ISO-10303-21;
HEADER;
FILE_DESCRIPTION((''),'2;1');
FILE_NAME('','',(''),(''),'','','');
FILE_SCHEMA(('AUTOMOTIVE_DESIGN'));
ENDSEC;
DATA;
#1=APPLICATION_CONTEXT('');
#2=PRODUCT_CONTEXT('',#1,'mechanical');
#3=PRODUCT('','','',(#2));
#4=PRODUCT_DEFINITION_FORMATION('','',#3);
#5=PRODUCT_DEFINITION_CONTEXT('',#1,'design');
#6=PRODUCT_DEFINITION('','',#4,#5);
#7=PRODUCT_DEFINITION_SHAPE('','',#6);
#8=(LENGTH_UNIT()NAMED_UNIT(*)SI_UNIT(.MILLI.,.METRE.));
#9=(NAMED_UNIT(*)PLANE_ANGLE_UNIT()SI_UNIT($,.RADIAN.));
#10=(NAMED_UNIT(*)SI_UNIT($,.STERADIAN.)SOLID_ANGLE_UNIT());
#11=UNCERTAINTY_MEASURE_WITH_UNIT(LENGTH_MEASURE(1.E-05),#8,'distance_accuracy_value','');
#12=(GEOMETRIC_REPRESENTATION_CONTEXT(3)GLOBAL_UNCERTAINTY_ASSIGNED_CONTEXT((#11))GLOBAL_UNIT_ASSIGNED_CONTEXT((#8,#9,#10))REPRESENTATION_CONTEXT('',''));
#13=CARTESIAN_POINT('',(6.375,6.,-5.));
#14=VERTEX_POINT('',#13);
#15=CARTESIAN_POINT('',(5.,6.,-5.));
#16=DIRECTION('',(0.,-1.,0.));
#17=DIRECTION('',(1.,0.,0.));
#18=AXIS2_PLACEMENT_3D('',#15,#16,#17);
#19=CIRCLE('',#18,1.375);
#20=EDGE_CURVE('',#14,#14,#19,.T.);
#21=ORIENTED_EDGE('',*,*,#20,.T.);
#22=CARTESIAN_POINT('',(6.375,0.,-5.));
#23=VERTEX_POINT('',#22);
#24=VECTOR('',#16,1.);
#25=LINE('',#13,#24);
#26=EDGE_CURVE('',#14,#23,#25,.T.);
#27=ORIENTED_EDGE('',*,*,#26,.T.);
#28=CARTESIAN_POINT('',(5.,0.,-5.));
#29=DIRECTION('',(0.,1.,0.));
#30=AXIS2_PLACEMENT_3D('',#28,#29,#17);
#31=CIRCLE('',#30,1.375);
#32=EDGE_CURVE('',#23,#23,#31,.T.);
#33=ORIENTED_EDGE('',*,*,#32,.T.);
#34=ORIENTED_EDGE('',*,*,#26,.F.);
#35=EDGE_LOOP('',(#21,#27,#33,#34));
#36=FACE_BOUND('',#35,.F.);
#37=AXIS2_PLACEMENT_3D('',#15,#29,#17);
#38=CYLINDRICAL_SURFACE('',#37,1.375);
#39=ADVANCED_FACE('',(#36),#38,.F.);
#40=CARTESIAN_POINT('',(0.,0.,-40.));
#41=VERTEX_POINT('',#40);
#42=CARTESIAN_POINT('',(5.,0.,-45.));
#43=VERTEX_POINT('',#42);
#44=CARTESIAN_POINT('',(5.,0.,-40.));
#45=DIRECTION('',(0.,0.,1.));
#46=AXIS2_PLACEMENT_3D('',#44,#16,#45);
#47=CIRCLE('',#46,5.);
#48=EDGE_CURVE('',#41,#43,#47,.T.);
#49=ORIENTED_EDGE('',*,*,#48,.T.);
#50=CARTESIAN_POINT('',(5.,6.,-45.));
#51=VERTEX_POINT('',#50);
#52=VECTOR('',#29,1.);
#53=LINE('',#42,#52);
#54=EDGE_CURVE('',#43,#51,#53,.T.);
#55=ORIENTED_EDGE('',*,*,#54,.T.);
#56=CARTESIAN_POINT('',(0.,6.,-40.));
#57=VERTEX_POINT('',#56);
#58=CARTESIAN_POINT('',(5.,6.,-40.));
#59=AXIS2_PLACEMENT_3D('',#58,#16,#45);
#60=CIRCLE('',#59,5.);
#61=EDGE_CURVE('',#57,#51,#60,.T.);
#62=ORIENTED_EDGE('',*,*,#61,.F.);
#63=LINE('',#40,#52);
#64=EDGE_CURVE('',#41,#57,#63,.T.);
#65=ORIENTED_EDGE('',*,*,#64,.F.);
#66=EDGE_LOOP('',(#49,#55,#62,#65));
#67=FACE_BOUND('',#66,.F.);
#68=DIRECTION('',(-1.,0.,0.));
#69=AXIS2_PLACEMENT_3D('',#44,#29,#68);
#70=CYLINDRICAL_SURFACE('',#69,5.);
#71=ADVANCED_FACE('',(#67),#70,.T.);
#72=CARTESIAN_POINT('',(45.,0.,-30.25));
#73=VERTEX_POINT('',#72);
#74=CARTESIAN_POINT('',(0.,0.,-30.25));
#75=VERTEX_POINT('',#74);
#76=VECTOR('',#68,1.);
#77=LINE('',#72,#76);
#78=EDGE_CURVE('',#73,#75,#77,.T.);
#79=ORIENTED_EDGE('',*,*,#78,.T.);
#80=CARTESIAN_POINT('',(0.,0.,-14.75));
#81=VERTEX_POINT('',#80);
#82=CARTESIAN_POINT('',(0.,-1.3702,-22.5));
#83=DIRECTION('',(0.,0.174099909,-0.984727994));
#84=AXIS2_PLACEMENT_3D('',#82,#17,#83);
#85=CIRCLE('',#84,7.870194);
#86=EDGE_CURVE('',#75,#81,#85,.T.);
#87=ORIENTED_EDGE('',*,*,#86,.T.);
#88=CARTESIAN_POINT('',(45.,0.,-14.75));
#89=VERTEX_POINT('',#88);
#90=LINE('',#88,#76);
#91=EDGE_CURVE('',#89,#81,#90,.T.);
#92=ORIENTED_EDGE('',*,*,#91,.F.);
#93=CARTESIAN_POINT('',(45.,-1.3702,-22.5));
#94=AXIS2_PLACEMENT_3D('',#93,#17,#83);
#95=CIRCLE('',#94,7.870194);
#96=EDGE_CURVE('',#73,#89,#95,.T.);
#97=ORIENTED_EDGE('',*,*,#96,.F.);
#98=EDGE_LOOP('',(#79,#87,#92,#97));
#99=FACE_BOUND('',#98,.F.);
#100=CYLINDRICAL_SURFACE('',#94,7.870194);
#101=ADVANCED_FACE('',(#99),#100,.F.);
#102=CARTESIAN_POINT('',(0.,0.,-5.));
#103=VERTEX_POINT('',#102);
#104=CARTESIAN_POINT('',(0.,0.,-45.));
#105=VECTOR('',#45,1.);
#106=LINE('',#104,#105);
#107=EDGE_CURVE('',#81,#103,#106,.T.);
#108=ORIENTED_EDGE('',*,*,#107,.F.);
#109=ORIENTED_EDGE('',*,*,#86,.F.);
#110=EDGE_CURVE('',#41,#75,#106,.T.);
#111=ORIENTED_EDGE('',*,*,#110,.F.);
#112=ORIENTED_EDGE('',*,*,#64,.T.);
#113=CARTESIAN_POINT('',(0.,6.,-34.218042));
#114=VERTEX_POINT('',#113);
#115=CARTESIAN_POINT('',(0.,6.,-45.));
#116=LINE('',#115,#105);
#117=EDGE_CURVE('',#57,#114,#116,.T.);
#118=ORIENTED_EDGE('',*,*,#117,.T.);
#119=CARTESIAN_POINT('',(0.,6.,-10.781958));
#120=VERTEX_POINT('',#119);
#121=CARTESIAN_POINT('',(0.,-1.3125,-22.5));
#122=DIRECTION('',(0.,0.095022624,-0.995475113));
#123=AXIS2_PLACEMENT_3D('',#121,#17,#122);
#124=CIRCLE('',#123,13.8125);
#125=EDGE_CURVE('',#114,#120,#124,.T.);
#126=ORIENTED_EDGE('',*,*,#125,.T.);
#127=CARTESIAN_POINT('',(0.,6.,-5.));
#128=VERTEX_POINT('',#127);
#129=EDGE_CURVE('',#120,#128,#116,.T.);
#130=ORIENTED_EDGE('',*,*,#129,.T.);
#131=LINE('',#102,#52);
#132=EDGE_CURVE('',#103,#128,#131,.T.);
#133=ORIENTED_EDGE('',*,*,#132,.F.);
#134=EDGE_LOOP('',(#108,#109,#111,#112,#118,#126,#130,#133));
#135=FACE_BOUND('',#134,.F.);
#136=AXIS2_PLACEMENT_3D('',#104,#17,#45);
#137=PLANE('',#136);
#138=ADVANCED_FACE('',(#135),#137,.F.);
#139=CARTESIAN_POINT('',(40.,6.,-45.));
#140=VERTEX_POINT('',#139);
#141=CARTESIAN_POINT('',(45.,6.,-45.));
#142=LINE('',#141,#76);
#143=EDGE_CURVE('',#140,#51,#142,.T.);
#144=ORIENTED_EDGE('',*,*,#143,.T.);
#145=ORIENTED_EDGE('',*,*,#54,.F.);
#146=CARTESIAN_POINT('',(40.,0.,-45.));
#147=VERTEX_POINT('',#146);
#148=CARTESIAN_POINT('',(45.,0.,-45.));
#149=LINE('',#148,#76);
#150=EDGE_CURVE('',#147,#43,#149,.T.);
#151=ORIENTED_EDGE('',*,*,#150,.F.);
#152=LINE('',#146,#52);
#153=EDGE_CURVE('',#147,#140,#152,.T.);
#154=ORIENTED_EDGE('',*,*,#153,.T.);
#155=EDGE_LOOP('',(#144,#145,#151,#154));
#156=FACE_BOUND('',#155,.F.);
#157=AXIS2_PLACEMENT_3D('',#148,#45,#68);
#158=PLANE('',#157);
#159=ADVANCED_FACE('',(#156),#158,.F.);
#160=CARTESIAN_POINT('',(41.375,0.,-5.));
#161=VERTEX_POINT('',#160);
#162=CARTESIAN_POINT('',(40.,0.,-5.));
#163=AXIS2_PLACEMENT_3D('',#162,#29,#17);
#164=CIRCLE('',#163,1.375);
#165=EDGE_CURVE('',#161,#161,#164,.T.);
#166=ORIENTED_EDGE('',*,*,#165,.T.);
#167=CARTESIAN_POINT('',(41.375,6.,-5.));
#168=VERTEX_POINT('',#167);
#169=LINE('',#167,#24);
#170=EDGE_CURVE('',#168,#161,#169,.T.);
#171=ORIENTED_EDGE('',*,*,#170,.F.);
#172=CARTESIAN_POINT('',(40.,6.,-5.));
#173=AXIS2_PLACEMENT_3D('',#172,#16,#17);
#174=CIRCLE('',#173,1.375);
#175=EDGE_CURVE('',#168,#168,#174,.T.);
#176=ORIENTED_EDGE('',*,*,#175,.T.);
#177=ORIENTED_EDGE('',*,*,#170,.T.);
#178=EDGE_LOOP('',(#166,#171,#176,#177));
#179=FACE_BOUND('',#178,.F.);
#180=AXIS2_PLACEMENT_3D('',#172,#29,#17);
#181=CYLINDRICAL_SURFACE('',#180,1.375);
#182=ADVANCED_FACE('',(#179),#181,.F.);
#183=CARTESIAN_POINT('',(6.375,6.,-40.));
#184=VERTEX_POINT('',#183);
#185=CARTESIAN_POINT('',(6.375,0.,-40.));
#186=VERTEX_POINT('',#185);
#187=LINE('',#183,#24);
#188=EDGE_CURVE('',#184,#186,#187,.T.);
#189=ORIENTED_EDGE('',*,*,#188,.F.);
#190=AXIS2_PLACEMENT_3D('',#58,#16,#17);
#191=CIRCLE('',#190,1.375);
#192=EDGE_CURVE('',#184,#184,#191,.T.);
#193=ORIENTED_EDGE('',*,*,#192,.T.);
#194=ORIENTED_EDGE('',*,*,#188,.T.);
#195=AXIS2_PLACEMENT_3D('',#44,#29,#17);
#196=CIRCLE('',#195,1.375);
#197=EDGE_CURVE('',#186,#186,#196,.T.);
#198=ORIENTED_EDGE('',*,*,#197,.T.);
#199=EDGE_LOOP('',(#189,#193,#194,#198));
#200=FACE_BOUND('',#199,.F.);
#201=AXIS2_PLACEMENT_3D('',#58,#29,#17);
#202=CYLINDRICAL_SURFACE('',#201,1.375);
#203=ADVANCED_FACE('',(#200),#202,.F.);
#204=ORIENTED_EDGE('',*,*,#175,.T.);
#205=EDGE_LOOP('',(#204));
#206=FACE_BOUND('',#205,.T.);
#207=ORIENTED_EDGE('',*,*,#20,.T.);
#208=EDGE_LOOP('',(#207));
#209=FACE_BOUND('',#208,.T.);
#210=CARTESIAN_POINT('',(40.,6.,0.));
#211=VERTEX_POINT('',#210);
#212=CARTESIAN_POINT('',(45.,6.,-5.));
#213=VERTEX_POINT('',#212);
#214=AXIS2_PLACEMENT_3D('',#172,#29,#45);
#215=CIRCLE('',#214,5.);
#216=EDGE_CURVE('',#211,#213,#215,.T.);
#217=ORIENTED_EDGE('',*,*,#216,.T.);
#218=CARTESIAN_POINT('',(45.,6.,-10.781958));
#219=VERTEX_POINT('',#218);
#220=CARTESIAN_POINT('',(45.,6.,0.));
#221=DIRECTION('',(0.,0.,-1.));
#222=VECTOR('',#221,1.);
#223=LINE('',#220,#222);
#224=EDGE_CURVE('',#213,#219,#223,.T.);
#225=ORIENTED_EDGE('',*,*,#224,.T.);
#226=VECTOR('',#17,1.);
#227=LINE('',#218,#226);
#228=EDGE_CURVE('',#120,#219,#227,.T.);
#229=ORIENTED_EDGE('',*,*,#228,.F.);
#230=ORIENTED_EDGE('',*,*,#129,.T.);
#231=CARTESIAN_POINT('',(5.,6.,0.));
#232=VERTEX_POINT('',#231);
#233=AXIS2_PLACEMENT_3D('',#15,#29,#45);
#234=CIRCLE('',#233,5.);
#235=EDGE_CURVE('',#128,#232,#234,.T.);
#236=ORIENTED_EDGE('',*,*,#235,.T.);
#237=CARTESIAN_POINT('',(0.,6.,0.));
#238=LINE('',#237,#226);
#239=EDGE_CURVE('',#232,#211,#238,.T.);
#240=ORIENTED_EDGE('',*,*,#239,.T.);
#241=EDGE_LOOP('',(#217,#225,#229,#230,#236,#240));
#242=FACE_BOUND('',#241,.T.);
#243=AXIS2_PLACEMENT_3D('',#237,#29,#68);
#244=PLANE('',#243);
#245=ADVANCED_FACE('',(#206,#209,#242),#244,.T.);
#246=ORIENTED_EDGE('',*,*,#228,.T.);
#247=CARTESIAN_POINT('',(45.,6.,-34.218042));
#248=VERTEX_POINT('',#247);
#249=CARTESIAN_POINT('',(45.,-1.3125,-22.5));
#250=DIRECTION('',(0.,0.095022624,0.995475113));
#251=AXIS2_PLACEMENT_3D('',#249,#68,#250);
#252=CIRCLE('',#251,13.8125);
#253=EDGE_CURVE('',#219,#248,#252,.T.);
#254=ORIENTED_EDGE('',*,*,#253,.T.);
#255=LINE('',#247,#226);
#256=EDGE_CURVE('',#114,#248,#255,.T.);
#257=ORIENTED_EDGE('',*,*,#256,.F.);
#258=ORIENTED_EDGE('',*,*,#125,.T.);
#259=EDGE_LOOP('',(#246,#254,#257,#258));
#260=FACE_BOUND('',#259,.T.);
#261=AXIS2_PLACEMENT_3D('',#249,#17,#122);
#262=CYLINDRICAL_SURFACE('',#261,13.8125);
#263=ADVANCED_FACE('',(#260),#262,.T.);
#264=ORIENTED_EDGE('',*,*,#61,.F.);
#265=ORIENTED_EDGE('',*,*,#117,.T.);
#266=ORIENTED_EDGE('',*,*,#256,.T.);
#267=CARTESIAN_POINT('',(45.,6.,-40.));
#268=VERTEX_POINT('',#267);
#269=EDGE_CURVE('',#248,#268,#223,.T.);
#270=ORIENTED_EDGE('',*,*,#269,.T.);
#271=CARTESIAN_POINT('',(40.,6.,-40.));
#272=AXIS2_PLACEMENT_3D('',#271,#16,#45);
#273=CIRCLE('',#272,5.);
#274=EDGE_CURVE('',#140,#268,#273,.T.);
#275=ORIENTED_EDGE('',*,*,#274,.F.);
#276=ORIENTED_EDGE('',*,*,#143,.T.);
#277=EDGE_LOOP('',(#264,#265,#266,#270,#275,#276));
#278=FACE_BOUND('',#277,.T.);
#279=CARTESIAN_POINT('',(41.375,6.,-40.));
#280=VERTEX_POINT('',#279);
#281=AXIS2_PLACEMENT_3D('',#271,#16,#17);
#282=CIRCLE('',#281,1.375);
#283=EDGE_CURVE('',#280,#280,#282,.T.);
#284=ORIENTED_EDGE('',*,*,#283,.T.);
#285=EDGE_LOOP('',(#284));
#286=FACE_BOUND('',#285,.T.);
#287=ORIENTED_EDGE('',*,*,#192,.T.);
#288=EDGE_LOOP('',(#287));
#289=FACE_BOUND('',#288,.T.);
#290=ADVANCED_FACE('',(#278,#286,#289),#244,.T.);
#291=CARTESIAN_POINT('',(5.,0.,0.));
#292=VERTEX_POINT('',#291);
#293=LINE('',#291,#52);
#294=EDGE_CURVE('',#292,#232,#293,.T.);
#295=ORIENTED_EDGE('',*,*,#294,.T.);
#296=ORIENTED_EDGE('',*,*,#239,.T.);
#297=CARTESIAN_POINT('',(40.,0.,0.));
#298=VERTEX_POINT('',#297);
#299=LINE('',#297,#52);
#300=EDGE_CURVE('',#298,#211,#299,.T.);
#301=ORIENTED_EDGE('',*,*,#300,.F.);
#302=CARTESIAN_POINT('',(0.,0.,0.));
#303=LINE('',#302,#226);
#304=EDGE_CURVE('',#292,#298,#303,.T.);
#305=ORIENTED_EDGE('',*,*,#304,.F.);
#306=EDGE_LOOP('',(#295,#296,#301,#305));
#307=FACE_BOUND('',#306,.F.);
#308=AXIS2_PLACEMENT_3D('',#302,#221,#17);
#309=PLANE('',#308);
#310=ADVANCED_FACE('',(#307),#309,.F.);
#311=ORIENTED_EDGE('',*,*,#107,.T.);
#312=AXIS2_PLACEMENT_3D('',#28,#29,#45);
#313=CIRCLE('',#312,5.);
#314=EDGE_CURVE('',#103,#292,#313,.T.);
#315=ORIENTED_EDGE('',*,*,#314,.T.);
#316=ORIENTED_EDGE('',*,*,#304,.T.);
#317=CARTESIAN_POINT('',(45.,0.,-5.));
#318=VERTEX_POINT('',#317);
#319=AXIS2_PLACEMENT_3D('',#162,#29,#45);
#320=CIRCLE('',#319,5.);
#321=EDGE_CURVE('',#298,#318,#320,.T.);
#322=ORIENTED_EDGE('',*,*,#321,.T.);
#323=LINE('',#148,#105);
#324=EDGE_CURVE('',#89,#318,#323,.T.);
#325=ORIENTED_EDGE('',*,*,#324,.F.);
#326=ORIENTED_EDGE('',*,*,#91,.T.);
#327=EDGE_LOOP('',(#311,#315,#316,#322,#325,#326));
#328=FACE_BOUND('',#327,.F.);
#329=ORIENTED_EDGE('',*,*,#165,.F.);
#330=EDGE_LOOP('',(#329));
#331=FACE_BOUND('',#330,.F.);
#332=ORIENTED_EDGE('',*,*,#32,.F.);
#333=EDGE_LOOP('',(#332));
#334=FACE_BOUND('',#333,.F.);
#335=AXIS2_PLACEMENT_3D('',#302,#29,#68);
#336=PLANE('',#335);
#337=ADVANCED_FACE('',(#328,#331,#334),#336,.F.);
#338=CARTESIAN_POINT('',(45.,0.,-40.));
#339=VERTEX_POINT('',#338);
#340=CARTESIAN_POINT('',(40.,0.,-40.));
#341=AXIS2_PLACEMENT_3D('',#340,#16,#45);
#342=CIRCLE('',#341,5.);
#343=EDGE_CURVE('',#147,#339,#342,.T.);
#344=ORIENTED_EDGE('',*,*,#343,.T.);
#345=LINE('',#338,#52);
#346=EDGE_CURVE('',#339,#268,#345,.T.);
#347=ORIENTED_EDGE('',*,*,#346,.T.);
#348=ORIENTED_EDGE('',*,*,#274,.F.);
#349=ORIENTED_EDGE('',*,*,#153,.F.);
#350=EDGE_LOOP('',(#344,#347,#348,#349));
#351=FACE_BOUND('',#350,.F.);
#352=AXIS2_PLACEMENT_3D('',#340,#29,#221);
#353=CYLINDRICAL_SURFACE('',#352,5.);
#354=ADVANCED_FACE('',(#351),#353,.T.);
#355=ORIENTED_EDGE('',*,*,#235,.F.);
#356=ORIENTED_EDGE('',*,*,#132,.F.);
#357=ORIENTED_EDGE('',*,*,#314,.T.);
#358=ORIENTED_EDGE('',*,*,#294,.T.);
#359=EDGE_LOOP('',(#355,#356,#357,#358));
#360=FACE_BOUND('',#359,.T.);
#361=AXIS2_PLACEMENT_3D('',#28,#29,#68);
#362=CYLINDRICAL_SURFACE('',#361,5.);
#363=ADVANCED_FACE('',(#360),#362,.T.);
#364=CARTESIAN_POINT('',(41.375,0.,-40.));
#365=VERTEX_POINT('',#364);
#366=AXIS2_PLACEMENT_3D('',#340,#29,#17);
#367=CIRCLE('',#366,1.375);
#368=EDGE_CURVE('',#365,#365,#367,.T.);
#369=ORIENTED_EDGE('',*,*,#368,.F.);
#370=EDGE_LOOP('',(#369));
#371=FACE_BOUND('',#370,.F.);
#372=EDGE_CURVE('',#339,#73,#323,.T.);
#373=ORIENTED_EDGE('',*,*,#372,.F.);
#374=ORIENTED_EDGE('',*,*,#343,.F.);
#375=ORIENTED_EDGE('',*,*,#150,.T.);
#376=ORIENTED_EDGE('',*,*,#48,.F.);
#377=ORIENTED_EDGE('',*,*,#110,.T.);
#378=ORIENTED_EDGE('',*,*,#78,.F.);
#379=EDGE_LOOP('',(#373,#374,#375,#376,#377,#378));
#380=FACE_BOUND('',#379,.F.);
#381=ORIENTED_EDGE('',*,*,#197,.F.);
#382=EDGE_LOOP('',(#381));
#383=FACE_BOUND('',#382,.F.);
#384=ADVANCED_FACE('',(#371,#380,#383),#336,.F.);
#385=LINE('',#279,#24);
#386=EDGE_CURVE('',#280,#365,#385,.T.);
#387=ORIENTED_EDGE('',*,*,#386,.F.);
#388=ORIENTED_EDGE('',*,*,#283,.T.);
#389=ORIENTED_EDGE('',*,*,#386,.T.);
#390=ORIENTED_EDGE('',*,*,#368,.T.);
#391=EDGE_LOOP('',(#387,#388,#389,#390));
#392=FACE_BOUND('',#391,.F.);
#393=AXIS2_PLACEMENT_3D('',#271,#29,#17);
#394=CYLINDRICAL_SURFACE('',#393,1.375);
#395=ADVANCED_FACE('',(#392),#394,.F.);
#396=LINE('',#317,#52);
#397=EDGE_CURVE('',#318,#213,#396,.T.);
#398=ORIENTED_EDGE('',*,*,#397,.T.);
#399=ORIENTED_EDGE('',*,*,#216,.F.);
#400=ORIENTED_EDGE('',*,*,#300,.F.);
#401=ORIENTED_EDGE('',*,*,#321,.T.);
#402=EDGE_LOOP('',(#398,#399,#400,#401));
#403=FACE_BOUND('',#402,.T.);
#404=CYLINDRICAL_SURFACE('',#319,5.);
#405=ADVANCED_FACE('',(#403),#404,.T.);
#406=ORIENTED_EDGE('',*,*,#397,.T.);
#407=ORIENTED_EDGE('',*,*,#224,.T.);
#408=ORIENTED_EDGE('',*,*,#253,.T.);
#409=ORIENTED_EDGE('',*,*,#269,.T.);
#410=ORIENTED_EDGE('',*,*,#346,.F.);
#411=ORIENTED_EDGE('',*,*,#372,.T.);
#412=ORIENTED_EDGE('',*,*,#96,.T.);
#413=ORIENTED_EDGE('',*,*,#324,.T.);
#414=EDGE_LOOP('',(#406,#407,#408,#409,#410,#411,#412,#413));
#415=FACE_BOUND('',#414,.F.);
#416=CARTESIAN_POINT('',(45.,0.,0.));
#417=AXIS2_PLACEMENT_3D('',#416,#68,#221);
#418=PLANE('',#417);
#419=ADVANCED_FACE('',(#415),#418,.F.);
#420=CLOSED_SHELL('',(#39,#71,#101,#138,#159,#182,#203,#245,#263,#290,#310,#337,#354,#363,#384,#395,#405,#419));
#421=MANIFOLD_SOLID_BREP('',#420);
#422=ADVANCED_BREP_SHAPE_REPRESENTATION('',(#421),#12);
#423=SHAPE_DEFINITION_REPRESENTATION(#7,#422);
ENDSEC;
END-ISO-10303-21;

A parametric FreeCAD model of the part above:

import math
import FreeCAD as App
import Part
import Sketcher


def edges_at(feature, points):
    """Names of the edges that pass closest to the given points."""
    edges = feature.Shape.Edges
    near = lambda p: min(range(len(edges)), key=lambda i: edges[i].distToShape(Part.Vertex(*p))[0])
    return sorted({f"Edge{near(p) + 1}" for p in points})

doc = App.newDocument("Part")
body = doc.addObject("PartDesign::Body", "Body")

# Sketch on XZ plane
sketch1 = body.newObject("Sketcher::SketchObject", "Sketch")
sketch1.AttachmentSupport = (doc.getObject("XZ_Plane"), [""])
sketch1.MapMode = "FlatFace"
sketch1.addGeometry([
    Part.LineSegment(App.Vector(0, -45, 0), App.Vector(0, 0, 0)),
    Part.LineSegment(App.Vector(0, 0, 0), App.Vector(45, 0, 0)),
    Part.LineSegment(App.Vector(45, 0, 0), App.Vector(45, -45, 0)),
    Part.LineSegment(App.Vector(45, -45, 0), App.Vector(0, -45, 0)),
], False)
sketch1.addConstraint([
    Sketcher.Constraint("Coincident", 0, 2, 1, 1),
    Sketcher.Constraint("Coincident", 1, 2, 2, 1),
    Sketcher.Constraint("Coincident", 2, 2, 3, 1),
    Sketcher.Constraint("Coincident", 3, 2, 0, 1),
    Sketcher.Constraint("Vertical", 0),
    Sketcher.Constraint("Horizontal", 1),
    Sketcher.Constraint("Vertical", 2),
    Sketcher.Constraint("Horizontal", 3),
    Sketcher.Constraint("Coincident", 0, 2, -1, 1),
    Sketcher.Constraint("Equal", 3, 0),
    Sketcher.Constraint("DistanceX", 1, 1, 1, 2, 45.0),
])
pad1 = body.newObject("PartDesign::Pad", "Pad")
pad1.Profile = sketch1
pad1.Length = 6
pad1.Reversed = True

# Sketch on YZ plane
sketch2 = body.newObject("Sketcher::SketchObject", "Sketch001")
sketch2.AttachmentSupport = (doc.getObject("YZ_Plane"), [""])
sketch2.MapMode = "FlatFace"
sketch2.AttachmentOffset = App.Placement(App.Vector(0, 0, 45), App.Rotation())
sketch2.addGeometry([
    Part.LineSegment(App.Vector(0, -8.75, 0), App.Vector(0, -14.75, 0)),
    Part.ArcOfCircle(Part.Circle(App.Vector(-1.3702, -22.5, 0), App.Vector(0, 0, 1), 7.870194), math.radians(-79.973717), math.radians(79.973717)),
    Part.LineSegment(App.Vector(0, -30.25, 0), App.Vector(0, -36.25, 0)),
    Part.ArcOfCircle(Part.Circle(App.Vector(-1.3125, -22.5, 0), App.Vector(0, 0, 1), 13.8125), math.radians(-84.547378), math.radians(84.547378)),
], False)
sketch2.addConstraint([
    Sketcher.Constraint("Coincident", 0, 2, 1, 2),
    Sketcher.Constraint("Coincident", 1, 1, 2, 1),
    Sketcher.Constraint("Coincident", 2, 2, 3, 1),
    Sketcher.Constraint("Coincident", 3, 2, 0, 1),
    Sketcher.Constraint("Vertical", 0),
    Sketcher.Constraint("Vertical", 2),
    Sketcher.Constraint("PointOnObject", 0, 2, -2),
    Sketcher.Constraint("PointOnObject", 1, 1, -2),
    Sketcher.Constraint("Horizontal", 1, 3, 3, 3),
    Sketcher.Constraint("DistanceY", 0, 2, 0, 1, 6.0),
    Sketcher.Constraint("DistanceY", 1, 1, 0, 2, 15.5),
    Sketcher.Constraint("DistanceY", 1, 3, -1, 1, 22.5),
    Sketcher.Constraint("Radius", 1, 7.8702),
    Sketcher.Constraint("Radius", 3, 13.8125),
])
pad2 = body.newObject("PartDesign::Pad", "Pad001")
pad2.Profile = sketch2
pad2.Length = 45
pad2.Reversed = True

# Sketch on YZ plane
sketch3 = body.newObject("Sketcher::SketchObject", "Sketch002")
sketch3.AttachmentSupport = (doc.getObject("YZ_Plane"), [""])
sketch3.MapMode = "FlatFace"
sketch3.AttachmentOffset = App.Placement(App.Vector(0, 0, 45), App.Rotation())
sketch3.addGeometry([
    Part.LineSegment(App.Vector(0, -14.75, 0), App.Vector(0, -30.25, 0)),
    Part.ArcOfCircle(Part.Circle(App.Vector(-1.3702, -22.5, 0), App.Vector(0, 0, 1), 7.870194), math.radians(-79.973717), math.radians(79.973717)),
], False)
sketch3.addConstraint([
    Sketcher.Constraint("Coincident", 0, 1, 1, 2),
    Sketcher.Constraint("Coincident", 1, 1, 0, 2),
    Sketcher.Constraint("Vertical", 0),
    Sketcher.Constraint("PointOnObject", 0, 1, -2),
    Sketcher.Constraint("DistanceY", 0, 2, 0, 1, 15.5),
    Sketcher.Constraint("DistanceY", 1, 3, -1, 1, 22.5),
    Sketcher.Constraint("Radius", 1, 7.8702),
])
pocket1 = body.newObject("PartDesign::Pocket", "Pocket")
pocket1.Profile = sketch3
pocket1.Length = 45
doc.recompute()

fillet = body.newObject("PartDesign::Fillet", "Fillet")
fillet.Base = (pocket1, edges_at(pocket1, [
    (45, 3, 0),
    (45, 3, -45),
    (0, 3, 0),
    (0, 3, -45),
]))
fillet.Radius = 5

# Sketch on XZ plane
sketch4 = body.newObject("Sketcher::SketchObject", "Sketch003")
sketch4.AttachmentSupport = (doc.getObject("XZ_Plane"), [""])
sketch4.MapMode = "FlatFace"
sketch4.AttachmentOffset = App.Placement(App.Vector(0, 0, -6), App.Rotation())
sketch4.addGeometry([
    Part.Circle(App.Vector(5, -5, 0), App.Vector(0, 0, 1), 1.375),
    Part.Circle(App.Vector(40, -5, 0), App.Vector(0, 0, 1), 1.375),
    Part.Circle(App.Vector(5, -40, 0), App.Vector(0, 0, 1), 1.375),
    Part.Circle(App.Vector(40, -40, 0), App.Vector(0, 0, 1), 1.375),
], False)
sketch4.addConstraint([
    Sketcher.Constraint("Equal", 0, 1),
    Sketcher.Constraint("Equal", 1, 2),
    Sketcher.Constraint("Equal", 2, 3),
    Sketcher.Constraint("Horizontal", 0, 3, 1, 3),
    Sketcher.Constraint("Horizontal", 2, 3, 3, 3),
    Sketcher.Constraint("Vertical", 0, 3, 2, 3),
    Sketcher.Constraint("Vertical", 1, 3, 3, 3),
    Sketcher.Constraint("Diameter", 0, 2.75),
    Sketcher.Constraint("DistanceX", -1, 1, 0, 3, 5.0),
    Sketcher.Constraint("DistanceY", 0, 3, -1, 1, 5.0),
    Sketcher.Constraint("DistanceX", -1, 1, 1, 3, 40.0),
    Sketcher.Constraint("DistanceY", 2, 3, -1, 1, 40.0),
])
pocket2 = body.newObject("PartDesign::Pocket", "Pocket001")
pocket2.Profile = sketch4
pocket2.Length = 45
pocket2.Reversed = True

doc.recompute()
